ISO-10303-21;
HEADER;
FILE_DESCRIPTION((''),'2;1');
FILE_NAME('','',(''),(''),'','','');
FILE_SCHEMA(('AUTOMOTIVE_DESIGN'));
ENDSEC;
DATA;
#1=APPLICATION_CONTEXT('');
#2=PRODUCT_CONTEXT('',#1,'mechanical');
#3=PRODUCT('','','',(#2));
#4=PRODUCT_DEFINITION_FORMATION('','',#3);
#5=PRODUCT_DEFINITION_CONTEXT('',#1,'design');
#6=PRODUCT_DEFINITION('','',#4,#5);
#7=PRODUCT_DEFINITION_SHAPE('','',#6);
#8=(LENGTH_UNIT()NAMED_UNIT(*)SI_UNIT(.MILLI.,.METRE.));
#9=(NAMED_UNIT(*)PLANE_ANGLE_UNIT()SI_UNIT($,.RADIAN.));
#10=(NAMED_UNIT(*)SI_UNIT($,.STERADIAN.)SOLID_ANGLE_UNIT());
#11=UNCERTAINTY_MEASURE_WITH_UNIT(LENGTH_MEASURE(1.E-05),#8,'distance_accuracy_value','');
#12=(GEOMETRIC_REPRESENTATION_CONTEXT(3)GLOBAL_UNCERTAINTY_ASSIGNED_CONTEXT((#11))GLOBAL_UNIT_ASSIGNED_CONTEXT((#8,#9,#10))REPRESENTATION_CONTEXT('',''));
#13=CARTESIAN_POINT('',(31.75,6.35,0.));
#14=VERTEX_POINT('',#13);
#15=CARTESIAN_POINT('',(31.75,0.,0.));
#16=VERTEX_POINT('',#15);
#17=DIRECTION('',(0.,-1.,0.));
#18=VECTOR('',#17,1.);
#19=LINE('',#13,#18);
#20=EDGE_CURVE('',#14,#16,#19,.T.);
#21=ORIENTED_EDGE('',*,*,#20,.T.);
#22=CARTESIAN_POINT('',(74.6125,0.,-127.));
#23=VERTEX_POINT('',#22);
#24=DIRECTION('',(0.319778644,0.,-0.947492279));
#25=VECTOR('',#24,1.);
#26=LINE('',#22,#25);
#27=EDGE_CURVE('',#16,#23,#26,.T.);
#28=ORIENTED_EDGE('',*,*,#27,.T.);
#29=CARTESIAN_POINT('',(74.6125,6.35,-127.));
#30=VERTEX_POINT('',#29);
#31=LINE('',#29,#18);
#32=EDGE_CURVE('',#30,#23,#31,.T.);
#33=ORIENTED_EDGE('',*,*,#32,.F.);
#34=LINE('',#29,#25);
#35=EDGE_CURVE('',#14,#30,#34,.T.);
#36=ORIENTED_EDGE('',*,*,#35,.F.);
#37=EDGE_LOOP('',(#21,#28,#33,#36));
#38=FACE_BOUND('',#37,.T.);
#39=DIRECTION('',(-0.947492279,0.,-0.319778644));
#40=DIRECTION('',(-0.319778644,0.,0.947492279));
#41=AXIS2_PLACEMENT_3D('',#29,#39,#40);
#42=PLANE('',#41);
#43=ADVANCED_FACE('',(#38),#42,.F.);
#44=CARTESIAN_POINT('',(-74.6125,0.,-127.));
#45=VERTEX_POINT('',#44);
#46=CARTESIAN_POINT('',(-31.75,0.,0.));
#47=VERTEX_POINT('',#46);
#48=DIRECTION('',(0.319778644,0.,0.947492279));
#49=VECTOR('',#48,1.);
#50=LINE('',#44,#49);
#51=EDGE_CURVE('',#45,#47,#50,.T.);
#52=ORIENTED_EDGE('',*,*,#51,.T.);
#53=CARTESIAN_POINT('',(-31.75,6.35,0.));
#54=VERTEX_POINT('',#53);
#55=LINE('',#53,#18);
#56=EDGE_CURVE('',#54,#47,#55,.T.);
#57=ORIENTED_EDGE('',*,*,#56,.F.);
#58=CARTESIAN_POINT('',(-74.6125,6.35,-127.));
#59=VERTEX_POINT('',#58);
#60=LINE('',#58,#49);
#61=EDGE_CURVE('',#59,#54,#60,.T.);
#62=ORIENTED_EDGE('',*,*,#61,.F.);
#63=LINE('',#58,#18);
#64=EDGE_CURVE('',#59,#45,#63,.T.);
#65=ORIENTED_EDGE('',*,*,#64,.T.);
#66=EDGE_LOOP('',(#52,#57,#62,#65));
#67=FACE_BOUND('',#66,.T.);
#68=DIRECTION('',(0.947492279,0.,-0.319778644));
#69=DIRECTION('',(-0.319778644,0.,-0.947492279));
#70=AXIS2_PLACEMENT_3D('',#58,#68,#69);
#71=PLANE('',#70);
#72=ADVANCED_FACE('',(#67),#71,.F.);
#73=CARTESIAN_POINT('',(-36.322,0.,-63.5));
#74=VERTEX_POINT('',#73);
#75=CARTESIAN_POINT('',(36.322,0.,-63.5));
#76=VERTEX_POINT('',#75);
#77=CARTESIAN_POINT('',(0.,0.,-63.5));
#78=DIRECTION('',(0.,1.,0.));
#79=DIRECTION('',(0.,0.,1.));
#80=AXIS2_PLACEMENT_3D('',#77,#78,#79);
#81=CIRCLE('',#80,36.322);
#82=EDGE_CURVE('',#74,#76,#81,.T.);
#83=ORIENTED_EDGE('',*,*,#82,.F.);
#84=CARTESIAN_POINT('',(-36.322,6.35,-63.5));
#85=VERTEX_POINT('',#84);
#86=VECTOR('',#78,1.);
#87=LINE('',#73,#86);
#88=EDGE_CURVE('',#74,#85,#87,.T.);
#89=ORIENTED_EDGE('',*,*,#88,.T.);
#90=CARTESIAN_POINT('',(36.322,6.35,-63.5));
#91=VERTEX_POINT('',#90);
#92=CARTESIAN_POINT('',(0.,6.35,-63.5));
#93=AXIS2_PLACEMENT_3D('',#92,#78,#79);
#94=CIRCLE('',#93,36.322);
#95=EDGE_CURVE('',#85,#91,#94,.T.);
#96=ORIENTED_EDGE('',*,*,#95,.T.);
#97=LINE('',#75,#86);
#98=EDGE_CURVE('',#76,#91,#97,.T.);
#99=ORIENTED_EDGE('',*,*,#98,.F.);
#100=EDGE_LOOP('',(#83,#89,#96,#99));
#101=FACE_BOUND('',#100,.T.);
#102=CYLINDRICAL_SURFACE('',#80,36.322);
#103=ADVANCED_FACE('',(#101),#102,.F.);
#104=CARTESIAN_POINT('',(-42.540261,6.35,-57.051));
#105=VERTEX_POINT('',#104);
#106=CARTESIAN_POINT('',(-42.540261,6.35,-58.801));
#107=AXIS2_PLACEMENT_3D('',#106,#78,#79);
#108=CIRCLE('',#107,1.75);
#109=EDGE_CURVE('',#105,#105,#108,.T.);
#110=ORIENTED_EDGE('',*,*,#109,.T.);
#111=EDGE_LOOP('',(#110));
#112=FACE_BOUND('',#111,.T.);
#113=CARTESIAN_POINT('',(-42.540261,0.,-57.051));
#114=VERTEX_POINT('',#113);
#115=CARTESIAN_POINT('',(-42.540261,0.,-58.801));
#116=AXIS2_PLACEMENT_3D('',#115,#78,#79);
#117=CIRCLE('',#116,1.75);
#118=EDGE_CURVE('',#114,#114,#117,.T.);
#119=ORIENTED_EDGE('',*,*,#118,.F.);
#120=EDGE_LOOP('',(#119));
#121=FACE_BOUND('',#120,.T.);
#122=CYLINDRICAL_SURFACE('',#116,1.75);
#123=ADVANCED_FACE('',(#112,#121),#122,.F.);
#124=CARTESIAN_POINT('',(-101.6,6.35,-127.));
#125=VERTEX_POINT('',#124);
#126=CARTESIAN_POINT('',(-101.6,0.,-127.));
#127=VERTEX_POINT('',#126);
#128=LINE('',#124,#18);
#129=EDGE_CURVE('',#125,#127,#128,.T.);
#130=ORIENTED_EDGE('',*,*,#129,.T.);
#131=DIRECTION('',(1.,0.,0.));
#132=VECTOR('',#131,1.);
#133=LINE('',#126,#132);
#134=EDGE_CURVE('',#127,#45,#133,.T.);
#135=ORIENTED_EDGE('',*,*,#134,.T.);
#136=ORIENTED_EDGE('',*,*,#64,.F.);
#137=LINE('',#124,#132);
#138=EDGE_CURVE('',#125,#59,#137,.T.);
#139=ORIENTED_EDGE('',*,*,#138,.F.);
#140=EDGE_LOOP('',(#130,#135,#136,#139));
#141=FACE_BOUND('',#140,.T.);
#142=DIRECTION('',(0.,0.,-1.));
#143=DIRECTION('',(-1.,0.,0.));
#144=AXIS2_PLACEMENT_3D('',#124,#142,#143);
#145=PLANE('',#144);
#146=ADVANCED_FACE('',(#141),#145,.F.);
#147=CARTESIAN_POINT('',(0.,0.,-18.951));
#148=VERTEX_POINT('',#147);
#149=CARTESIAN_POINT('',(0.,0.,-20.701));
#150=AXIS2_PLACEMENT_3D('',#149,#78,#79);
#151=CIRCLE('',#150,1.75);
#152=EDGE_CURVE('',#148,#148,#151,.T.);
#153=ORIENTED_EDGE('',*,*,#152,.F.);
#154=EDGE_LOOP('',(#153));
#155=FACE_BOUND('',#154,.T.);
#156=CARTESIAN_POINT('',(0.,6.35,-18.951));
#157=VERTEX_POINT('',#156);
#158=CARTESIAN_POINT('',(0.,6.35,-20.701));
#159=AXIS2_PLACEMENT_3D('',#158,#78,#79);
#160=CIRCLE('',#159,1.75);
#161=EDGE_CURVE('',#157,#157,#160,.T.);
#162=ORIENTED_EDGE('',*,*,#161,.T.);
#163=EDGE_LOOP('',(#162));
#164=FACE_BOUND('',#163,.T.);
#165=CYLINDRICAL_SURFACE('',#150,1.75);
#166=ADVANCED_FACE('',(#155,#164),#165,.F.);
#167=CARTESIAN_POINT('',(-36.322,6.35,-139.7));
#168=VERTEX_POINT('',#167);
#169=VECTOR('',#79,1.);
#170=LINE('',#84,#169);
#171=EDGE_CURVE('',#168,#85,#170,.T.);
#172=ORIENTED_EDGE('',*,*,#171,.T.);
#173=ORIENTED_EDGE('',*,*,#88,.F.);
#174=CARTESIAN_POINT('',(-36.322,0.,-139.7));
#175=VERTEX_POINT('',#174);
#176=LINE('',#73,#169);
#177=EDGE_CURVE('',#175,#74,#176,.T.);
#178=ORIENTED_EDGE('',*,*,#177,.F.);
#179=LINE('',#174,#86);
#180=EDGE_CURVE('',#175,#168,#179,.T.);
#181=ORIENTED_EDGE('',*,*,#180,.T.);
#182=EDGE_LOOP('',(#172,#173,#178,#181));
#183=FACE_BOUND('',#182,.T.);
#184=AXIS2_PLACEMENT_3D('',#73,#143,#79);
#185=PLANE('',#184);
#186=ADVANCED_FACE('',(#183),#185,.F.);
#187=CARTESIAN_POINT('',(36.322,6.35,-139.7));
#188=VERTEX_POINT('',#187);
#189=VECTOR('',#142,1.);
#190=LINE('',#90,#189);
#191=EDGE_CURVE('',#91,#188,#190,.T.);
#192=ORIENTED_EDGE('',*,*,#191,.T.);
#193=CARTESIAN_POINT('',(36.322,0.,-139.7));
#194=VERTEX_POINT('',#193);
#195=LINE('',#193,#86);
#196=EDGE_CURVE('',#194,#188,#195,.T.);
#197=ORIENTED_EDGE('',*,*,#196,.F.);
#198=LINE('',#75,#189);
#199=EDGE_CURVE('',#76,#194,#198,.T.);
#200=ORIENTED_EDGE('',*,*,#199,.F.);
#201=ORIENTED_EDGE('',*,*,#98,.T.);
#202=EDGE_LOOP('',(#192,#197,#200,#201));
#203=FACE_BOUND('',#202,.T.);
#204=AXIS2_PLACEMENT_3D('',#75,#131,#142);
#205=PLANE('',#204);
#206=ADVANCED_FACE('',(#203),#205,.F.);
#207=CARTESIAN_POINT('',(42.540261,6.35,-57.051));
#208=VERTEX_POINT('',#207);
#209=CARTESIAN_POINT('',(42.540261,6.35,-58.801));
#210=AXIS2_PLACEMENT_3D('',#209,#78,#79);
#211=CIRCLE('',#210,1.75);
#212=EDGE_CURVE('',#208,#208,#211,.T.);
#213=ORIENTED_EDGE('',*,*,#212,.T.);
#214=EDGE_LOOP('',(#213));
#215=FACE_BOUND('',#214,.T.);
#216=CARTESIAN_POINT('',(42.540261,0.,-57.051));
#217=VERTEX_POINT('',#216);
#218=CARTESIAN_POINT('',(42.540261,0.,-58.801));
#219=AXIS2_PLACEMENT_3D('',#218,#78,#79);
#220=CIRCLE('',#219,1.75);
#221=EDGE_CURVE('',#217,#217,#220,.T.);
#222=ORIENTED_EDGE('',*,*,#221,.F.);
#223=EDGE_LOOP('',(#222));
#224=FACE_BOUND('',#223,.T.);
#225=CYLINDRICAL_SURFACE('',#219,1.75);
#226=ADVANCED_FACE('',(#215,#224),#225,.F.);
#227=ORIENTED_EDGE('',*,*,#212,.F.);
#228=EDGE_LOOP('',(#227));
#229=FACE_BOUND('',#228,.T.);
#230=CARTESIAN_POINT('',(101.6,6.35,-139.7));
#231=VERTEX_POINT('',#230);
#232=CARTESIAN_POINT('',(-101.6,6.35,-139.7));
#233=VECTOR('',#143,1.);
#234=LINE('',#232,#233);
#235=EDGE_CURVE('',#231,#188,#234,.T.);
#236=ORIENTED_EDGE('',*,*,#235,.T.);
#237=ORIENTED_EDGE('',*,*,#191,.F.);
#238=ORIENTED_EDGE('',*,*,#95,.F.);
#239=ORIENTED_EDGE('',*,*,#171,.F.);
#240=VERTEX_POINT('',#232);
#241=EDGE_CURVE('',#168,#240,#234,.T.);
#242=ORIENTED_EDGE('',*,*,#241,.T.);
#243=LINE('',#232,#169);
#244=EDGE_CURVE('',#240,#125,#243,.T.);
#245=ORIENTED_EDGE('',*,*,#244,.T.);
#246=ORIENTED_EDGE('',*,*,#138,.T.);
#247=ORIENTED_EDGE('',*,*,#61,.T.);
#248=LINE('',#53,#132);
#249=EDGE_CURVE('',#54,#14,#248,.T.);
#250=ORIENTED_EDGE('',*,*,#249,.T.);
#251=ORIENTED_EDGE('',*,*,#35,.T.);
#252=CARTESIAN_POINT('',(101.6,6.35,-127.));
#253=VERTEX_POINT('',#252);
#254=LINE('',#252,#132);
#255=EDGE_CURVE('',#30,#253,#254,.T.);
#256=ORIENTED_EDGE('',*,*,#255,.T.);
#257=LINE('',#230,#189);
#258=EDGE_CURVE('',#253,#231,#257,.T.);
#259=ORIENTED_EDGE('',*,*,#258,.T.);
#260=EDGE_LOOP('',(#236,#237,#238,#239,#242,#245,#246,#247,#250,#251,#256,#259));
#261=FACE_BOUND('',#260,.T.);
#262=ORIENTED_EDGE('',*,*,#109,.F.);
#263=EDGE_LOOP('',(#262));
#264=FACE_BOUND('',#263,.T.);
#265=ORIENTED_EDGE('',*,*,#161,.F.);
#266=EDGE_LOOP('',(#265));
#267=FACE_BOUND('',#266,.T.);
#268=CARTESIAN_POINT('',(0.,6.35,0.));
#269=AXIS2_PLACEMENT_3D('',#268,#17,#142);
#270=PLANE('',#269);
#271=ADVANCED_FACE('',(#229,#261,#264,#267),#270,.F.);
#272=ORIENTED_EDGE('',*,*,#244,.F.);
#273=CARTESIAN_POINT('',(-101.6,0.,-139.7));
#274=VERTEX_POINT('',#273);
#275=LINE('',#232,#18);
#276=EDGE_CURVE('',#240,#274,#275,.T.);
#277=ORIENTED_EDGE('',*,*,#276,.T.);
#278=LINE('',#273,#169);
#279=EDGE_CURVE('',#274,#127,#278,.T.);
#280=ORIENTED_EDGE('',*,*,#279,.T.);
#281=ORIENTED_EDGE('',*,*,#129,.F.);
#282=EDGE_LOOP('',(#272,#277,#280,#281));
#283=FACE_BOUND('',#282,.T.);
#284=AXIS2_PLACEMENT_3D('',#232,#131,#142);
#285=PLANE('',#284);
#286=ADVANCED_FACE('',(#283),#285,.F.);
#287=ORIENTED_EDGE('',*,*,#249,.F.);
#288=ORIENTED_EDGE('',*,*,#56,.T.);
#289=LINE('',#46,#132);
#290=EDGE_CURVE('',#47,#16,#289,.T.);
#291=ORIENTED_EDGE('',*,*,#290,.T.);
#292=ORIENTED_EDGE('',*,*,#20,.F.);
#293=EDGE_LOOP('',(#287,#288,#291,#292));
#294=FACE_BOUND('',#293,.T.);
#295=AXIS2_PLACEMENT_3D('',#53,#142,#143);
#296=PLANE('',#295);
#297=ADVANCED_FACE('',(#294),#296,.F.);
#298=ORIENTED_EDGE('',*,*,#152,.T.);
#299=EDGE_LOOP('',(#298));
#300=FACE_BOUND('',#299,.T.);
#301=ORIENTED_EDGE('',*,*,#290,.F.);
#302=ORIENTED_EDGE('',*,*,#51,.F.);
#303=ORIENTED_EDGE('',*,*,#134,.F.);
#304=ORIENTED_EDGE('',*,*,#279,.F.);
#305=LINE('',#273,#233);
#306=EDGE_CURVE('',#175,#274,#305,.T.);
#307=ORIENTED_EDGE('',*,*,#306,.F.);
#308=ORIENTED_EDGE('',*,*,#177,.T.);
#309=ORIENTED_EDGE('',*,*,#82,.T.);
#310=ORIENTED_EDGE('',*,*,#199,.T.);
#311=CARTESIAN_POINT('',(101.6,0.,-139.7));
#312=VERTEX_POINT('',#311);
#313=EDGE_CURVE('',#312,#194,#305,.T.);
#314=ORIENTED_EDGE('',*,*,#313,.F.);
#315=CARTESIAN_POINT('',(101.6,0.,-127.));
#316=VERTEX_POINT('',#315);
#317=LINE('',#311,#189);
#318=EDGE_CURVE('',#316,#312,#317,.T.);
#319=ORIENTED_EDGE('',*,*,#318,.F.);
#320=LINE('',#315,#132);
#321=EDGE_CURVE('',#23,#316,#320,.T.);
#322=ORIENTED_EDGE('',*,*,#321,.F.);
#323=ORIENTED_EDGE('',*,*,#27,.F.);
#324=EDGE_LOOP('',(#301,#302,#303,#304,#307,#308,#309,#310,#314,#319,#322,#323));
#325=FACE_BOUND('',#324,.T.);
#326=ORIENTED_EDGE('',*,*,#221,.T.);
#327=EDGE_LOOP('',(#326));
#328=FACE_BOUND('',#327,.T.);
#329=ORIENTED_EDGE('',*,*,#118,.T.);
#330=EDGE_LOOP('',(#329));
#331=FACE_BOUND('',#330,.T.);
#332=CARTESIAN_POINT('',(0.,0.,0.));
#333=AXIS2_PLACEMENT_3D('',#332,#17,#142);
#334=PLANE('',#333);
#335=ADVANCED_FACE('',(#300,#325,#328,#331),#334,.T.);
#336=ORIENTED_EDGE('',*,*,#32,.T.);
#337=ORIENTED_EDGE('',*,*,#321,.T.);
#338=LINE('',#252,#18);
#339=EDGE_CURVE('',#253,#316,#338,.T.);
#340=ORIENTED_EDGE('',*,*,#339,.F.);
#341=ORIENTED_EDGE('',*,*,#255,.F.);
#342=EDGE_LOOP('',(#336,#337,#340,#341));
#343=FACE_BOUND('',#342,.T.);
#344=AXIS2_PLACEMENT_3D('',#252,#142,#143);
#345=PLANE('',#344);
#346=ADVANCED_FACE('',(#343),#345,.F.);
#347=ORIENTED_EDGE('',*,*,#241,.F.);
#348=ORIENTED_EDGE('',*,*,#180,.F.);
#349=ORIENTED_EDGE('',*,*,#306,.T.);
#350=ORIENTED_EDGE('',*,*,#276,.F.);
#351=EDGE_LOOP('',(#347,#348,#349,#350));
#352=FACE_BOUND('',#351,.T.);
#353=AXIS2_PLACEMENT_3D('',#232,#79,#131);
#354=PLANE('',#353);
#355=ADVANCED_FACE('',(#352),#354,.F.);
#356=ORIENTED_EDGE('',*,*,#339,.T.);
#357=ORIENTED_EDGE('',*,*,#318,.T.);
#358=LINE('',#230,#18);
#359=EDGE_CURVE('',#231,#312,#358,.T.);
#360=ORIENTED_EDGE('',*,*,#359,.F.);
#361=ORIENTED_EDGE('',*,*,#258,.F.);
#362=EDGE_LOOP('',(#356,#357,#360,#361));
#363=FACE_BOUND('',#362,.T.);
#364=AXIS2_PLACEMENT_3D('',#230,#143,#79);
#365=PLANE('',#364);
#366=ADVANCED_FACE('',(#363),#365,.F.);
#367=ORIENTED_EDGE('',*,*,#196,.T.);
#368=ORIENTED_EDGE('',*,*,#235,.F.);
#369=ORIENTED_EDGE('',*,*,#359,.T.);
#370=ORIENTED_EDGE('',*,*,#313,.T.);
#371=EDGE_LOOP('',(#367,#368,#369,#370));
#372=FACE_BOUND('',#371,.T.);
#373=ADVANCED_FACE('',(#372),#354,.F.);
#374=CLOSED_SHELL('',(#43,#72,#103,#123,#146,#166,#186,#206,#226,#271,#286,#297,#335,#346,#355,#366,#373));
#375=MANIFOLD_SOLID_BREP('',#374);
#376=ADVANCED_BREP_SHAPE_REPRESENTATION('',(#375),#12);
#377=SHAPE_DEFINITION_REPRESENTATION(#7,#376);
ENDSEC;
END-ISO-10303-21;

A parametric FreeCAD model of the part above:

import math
import FreeCAD as App
import Part
import Sketcher
Q = App.Units.Quantity


def add_polygon(sketch, points):
    """Adds a closed chain of lines whose ends are joined by coincident constraints."""
    first, n = sketch.GeometryCount, len(points)
    for a, b in zip(points, points[1:] + points[:1]):
        sketch.addGeometry(Part.LineSegment(App.Vector(*a, 0), App.Vector(*b, 0)), False)
    for i in range(n):
        sketch.addConstraint(Sketcher.Constraint("Coincident", first + i, 2, first + (i + 1) % n, 1))

doc = App.newDocument("Part")
body = doc.addObject("PartDesign::Body", "Body")

# Sketch on XZ plane
sketch1 = body.newObject("Sketcher::SketchObject", "Sketch")
sketch1.AttachmentSupport = (doc.getObject("XZ_Plane"), [""])
sketch1.MapMode = "FlatFace"
add_polygon(sketch1, [(-101.6, -139.7), (-101.6, -127), (-74.6125, -127), (-31.75, 0), (31.75, 0), (74.6125, -127), (101.6, -127), (101.6, -139.7)])  # lines 0-7
sketch1.addConstraint(Sketcher.Constraint("Vertical", 0))
sketch1.addConstraint(Sketcher.Constraint("Horizontal", 1))
sketch1.addConstraint(Sketcher.Constraint("Horizontal", 3))
sketch1.addConstraint(Sketcher.Constraint("Horizontal", 5))
sketch1.addConstraint(Sketcher.Constraint("Vertical", 6))
sketch1.addConstraint(Sketcher.Constraint("Horizontal", 7))
sketch1.addConstraint(Sketcher.Constraint("Symmetric", 2, 2, 3, 2, -1, 1))
sketch1.addConstraint(Sketcher.Constraint("Symmetric", 1, 2, 4, 2, -2))
sketch1.addConstraint(Sketcher.Constraint("Equal", 1, 5))
sketch1.addConstraint(Sketcher.Constraint("DistanceX", 7, 2, 7, 1, Q("8 in")))
sketch1.addConstraint(Sketcher.Constraint("DistanceX", 3, 1, 3, 2, Q("2.5 in")))
sketch1.addConstraint(Sketcher.Constraint("DistanceY", 0, 1, 0, 2, Q("0.5 in")))
sketch1.addConstraint(Sketcher.Constraint("DistanceY", 0, 2, -1, 1, Q("5 in")))
sketch1.addConstraint(Sketcher.Constraint("DistanceX", 1, 1, 1, 2, Q("1.0625 in")))
pad1 = body.newObject("PartDesign::Pad", "Pad")
pad1.Profile = sketch1
pad1.Length = Q("0.25 in")
pad1.Reversed = True

# Sketch on XZ plane
sketch2 = body.newObject("Sketcher::SketchObject", "Sketch001")
sketch2.AttachmentSupport = (doc.getObject("XZ_Plane"), [""])
sketch2.MapMode = "FlatFace"
sketch2.AttachmentOffset = App.Placement(App.Vector(0, 0, -0.25 * 25.4), App.Rotation())
sketch2.addGeometry(Part.Circle(App.Vector(0, -63.5, 0), App.Vector(0, 0, 1), 36.322), False)
sketch2.addConstraint(Sketcher.Constraint("PointOnObject", 0, 3, -2))
sketch2.addConstraint(Sketcher.Constraint("Diameter", 0, Q("2.86 in")))
sketch2.addConstraint(Sketcher.Constraint("DistanceY", 0, 3, -1, 1, Q("2.5 in")))
pocket1 = body.newObject("PartDesign::Pocket", "Pocket")
pocket1.Profile = sketch2
pocket1.Type = "ThroughAll"
pocket1.Reversed = True

# Sketch on XZ plane
sketch3 = body.newObject("Sketcher::SketchObject", "Sketch002")
sketch3.AttachmentSupport = (doc.getObject("XZ_Plane"), [""])
sketch3.MapMode = "FlatFace"
sketch3.AttachmentOffset = App.Placement(App.Vector(0, 0, -0.25 * 25.4), App.Rotation())
sketch3.addGeometry(Part.LineSegment(App.Vector(-36.322, -139.7, 0), App.Vector(-36.322, -63.5, 0)), False)
sketch3.addGeometry(Part.ArcOfCircle(Part.Circle(App.Vector(0, -63.5, 0), App.Vector(0, 0, 1), 36.322), math.radians(180), math.radians(360)), False)
sketch3.addGeometry(Part.LineSegment(App.Vector(36.322, -63.5, 0), App.Vector(36.322, -139.7, 0)), False)
sketch3.addGeometry(Part.LineSegment(App.Vector(36.322, -139.7, 0), App.Vector(-36.322, -139.7, 0)), False)
sketch3.addConstraint(Sketcher.Constraint("Tangent", 0, 2, 1, 1))
sketch3.addConstraint(Sketcher.Constraint("Tangent", 1, 2, 2, 1))
sketch3.addConstraint(Sketcher.Constraint("Coincident", 2, 2, 3, 1))
sketch3.addConstraint(Sketcher.Constraint("Coincident", 3, 2, 0, 1))
sketch3.addConstraint(Sketcher.Constraint("Vertical", 0))
sketch3.addConstraint(Sketcher.Constraint("Vertical", 2))
sketch3.addConstraint(Sketcher.Constraint("Horizontal", 3))
sketch3.addConstraint(Sketcher.Constraint("PointOnObject", 1, 3, -2))
sketch3.addConstraint(Sketcher.Constraint("DistanceY", 0, 1, 0, 2, Q("3 in")))
sketch3.addConstraint(Sketcher.Constraint("Radius", 1, Q("1.43 in")))
sketch3.addConstraint(Sketcher.Constraint("DistanceY", 1, 3, -1, 1, Q("2.5 in")))
pocket2 = body.newObject("PartDesign::Pocket", "Pocket001")
pocket2.Profile = sketch3
pocket2.Length = Q("0.25 in")
pocket2.Reversed = True

# Sketch on XZ plane
sketch4 = body.newObject("Sketcher::SketchObject", "Sketch003")
sketch4.AttachmentSupport = (doc.getObject("XZ_Plane"), [""])
sketch4.MapMode = "FlatFace"
sketch4.AttachmentOffset = App.Placement(App.Vector(0, 0, -0.25 * 25.4), App.Rotation())
sketch4.addGeometry(Part.Circle(App.Vector(0, -20.701, 0), App.Vector(0, 0, 1), 1.75), False)
sketch4.addGeometry(Part.Circle(App.Vector(42.540261, -58.801, 0), App.Vector(0, 0, 1), 1.75), False)
sketch4.addGeometry(Part.Circle(App.Vector(-42.540261, -58.801, 0), App.Vector(0, 0, 1), 1.75), False)
sketch4.addConstraint(Sketcher.Constraint("Equal", 0, 1))
sketch4.addConstraint(Sketcher.Constraint("Equal", 1, 2))
sketch4.addConstraint(Sketcher.Constraint("Symmetric", 1, 3, 2, 3, -2))
sketch4.addConstraint(Sketcher.Constraint("PointOnObject", 0, 3, -2))
sketch4.addConstraint(Sketcher.Constraint("DistanceY", 1, 3, 0, 3, Q("1.5 in")))
sketch4.addConstraint(Sketcher.Constraint("Diameter", 0, Q("3.5 mm")))
sketch4.addConstraint(Sketcher.Constraint("DistanceY", 0, 3, -1, 1, Q("0.815 in")))
sketch4.addConstraint(Sketcher.Constraint("DistanceX", -1, 1, 1, 3, Q("42.540261 mm")))
pocket3 = body.newObject("PartDesign::Pocket", "Pocket002")
pocket3.Profile = sketch4
pocket3.Length = Q("0.25 in")
pocket3.Reversed = True

doc.recompute()
